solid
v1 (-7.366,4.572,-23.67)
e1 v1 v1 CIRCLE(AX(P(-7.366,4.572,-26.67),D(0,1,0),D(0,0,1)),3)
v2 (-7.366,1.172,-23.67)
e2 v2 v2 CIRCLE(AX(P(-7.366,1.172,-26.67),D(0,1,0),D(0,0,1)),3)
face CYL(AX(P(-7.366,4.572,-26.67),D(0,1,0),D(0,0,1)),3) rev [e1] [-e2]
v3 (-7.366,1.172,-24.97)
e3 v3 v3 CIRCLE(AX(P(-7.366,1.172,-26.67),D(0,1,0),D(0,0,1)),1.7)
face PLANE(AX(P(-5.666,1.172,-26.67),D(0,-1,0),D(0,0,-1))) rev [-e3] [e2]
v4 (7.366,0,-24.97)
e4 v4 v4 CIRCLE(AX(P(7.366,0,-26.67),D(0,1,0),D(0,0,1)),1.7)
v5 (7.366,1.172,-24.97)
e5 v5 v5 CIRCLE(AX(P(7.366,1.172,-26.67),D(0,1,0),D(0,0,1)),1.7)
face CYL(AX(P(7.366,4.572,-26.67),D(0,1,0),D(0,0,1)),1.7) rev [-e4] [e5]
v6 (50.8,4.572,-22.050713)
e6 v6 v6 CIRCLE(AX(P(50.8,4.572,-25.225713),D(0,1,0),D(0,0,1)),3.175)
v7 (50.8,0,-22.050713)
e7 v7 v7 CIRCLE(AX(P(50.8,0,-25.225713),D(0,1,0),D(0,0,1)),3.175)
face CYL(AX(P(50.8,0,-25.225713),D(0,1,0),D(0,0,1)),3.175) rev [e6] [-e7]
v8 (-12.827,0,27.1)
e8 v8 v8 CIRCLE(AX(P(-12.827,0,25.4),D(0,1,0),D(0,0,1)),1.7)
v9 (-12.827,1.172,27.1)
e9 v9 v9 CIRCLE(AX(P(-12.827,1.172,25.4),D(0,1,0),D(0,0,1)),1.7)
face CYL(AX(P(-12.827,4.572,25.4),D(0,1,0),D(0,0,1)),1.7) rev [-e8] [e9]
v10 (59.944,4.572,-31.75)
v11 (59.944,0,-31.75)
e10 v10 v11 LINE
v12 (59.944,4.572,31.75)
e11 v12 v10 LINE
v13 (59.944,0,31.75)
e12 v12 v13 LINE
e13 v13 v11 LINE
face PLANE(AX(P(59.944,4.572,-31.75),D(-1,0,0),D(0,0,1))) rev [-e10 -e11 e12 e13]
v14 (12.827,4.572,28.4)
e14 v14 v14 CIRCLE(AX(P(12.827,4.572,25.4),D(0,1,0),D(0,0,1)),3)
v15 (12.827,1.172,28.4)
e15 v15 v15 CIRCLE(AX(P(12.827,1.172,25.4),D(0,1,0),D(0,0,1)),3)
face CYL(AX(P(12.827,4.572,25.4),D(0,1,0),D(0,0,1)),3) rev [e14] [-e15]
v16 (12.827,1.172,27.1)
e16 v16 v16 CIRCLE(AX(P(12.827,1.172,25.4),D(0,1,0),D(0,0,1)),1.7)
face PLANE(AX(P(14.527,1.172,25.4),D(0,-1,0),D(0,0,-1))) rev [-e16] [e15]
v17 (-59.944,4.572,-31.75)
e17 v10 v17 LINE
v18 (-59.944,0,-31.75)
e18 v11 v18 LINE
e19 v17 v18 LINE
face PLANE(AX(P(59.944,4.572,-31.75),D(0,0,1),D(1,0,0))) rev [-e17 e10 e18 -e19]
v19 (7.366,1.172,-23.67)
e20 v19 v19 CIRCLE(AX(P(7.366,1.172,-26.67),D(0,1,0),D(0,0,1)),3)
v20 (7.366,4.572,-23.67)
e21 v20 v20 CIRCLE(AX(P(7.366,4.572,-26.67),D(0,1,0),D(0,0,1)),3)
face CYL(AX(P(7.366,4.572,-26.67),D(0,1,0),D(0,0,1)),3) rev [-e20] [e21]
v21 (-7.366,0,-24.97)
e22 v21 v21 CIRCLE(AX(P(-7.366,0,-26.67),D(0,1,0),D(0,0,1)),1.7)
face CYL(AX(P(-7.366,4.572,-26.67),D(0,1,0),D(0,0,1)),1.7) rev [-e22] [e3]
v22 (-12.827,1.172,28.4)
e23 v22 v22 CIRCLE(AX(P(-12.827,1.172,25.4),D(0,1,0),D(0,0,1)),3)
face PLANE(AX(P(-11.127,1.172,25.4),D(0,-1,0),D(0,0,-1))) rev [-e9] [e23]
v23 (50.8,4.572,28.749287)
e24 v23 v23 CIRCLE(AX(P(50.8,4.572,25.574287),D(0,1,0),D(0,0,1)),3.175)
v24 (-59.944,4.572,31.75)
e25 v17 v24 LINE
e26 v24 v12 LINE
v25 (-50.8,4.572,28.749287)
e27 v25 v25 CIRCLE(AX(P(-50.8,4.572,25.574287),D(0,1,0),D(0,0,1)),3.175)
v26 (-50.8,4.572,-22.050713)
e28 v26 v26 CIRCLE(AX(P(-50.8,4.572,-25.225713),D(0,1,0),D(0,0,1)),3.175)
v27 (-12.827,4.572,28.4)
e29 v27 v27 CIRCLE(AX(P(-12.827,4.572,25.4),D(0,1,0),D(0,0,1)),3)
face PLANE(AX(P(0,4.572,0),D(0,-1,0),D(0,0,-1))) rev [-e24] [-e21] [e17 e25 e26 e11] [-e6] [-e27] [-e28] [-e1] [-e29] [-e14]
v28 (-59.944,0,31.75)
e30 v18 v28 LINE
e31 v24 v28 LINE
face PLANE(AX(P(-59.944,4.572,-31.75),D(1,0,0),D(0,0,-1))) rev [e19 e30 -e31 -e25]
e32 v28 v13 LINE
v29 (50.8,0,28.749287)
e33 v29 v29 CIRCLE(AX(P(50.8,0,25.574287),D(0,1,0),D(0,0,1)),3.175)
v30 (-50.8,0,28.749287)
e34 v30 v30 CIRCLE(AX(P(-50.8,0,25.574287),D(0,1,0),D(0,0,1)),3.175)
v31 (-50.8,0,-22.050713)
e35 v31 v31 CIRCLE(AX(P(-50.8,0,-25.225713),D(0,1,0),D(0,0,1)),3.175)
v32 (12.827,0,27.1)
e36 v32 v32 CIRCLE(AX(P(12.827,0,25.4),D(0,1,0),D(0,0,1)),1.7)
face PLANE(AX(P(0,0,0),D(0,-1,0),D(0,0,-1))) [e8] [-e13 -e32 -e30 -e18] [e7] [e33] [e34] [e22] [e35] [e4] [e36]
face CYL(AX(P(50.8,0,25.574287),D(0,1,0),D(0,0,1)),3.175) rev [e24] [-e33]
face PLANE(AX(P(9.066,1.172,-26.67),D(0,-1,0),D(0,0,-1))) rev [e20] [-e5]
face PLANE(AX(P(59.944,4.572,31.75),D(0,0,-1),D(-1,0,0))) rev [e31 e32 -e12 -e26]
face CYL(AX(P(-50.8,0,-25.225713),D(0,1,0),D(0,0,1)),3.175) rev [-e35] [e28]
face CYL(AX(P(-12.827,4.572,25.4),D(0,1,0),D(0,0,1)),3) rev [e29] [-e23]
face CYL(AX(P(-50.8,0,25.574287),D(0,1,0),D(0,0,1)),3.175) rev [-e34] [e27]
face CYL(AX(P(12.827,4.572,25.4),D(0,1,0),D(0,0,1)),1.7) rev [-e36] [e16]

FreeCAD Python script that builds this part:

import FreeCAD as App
import Part
import Sketcher

V = App.Vector
Q = App.Units.Quantity


def add_polygon(sketch, points):
    """Adds a closed chain of lines whose ends are joined by coincident constraints."""
    first, n = sketch.GeometryCount, len(points)
    for a, b in zip(points, points[1:] + points[:1]):
        sketch.addGeometry(Part.LineSegment(App.Vector(*a, 0), App.Vector(*b, 0)), False)
    for i in range(n):
        sketch.addConstraint(Sketcher.Constraint("Coincident", first + i, 2, first + (i + 1) % n, 1))

doc = App.newDocument("Part")
body = doc.addObject("PartDesign::Body", "Body")

# Sketch on XZ plane
sketch1 = doc.addObject("Sketcher::SketchObject", "Sketch")
body.addObject(sketch1)
sketch1.AttachmentSupport = (doc.XZ_Plane, [""])
sketch1.MapMode = "FlatFace"
add_polygon(sketch1, [(-60, -32), (-60, 32), (60, 32), (60, -32)])  # lines 0-3
sketch1.addConstraint([
    Sketcher.Constraint("Vertical", 0),
    Sketcher.Constraint("Horizontal", 1),
    Sketcher.Constraint("Vertical", 2),
    Sketcher.Constraint("Horizontal", 3),
    Sketcher.Constraint("Symmetric", 0, 2, 2, 2, -1, 1),
    Sketcher.Constraint("DistanceY", 0, 1, 0, 2, Q("2.5 in")),
    Sketcher.Constraint("DistanceX", 1, 1, 1, 2, Q("4.72 in")),
])
pad1 = doc.addObject("PartDesign::Pad", "Pad")
body.addObject(pad1)
pad1.Profile = sketch1
pad1.Length = Q("0.18 in")
pad1.Reversed = True

# Sketch on XZ plane
sketch2 = doc.addObject("Sketcher::SketchObject", "Sketch001")
body.addObject(sketch2)
sketch2.AttachmentSupport = (doc.XZ_Plane, [""])
sketch2.MapMode = "FlatFace"
sketch2.AttachmentOffset = App.Placement(V(0, 0, -0.18 * 25.4), App.Rotation())
sketch2.addGeometry([
    Part.Circle(V(7.4, -26.7, 0), V(0, 0, 1), 1.7),
    Part.Circle(V(12.8, 25.4, 0), V(0, 0, 1), 1.7),
    Part.Circle(V(-12.8, 25.4, 0), V(0, 0, 1), 1.7),
    Part.Circle(V(-7.4, -26.7, 0), V(0, 0, 1), 1.7),
], False)
sketch2.addConstraint([
    Sketcher.Constraint("Equal", 0, 1),
    Sketcher.Constraint("Equal", 1, 2),
    Sketcher.Constraint("Equal", 2, 3),
    Sketcher.Constraint("Symmetric", 1, 3, 2, 3, -2),
    Sketcher.Constraint("Symmetric", 0, 3, 3, 3, -2),
    Sketcher.Constraint("DistanceY", -1, 1, 1, 3, Q("1 in")),
    Sketcher.Constraint("Diameter", 0, Q("3.4 mm")),
    Sketcher.Constraint("DistanceX", -1, 1, 0, 3, Q("0.29 in")),
    Sketcher.Constraint("DistanceY", 0, 3, -1, 1, Q("1.05 in")),
    Sketcher.Constraint("DistanceX", 2, 3, 1, 3, Q("1.01 in")),
])
doc.recompute()
hole = doc.addObject("PartDesign::Hole", "Hole")
body.addObject(hole)
hole.Profile = sketch2
hole.ThreadType = "None"
hole.Diameter = 3.4
hole.DepthType = "ThroughAll"
hole.HoleCutType = "Counterbore"
hole.HoleCutDiameter = 6
hole.HoleCutDepth = 3.4
hole.Reversed = True

# Sketch on XZ plane
sketch3 = doc.addObject("Sketcher::SketchObject", "Sketch002")
body.addObject(sketch3)
sketch3.AttachmentSupport = (doc.XZ_Plane, [""])
sketch3.MapMode = "FlatFace"
sketch3.AttachmentOffset = App.Placement(V(0, 0, -0.18 * 25.4), App.Rotation())
sketch3.addGeometry([
    Part.Circle(V(50.8, -25.2, 0), V(0, 0, 1), 3.2),
    Part.Circle(V(50.8, 25.6, 0), V(0, 0, 1), 3.2),
    Part.Circle(V(-50.8, -25.2, 0), V(0, 0, 1), 3.2),
    Part.Circle(V(-50.8, 25.6, 0), V(0, 0, 1), 3.2),
], False)
sketch3.addConstraint([
    Sketcher.Constraint("Equal", 0, 1),
    Sketcher.Constraint("Equal", 1, 2),
    Sketcher.Constraint("Equal", 2, 3),
    Sketcher.Constraint("Symmetric", 0, 3, 2, 3, -2),
    Sketcher.Constraint("Symmetric", 1, 3, 3, 3, -2),
    Sketcher.Constraint("Vertical", 0, 3, 1, 3),
    Sketcher.Constraint("Diameter", 0, Q("0.25 in")),
    Sketcher.Constraint("DistanceX", -1, 1, 0, 3, Q("2 in")),
    Sketcher.Constraint("DistanceY", 0, 3, 1, 3, Q("2 in")),
    Sketcher.Constraint("DistanceY", 0, 3, -1, 1, Q("25.225713 mm")),
])
pocket1 = doc.addObject("PartDesign::Pocket", "Pocket")
body.addObject(pocket1)
pocket1.Profile = sketch3
pocket1.Type = "ThroughAll"
pocket1.Reversed = True

doc.recompute()
